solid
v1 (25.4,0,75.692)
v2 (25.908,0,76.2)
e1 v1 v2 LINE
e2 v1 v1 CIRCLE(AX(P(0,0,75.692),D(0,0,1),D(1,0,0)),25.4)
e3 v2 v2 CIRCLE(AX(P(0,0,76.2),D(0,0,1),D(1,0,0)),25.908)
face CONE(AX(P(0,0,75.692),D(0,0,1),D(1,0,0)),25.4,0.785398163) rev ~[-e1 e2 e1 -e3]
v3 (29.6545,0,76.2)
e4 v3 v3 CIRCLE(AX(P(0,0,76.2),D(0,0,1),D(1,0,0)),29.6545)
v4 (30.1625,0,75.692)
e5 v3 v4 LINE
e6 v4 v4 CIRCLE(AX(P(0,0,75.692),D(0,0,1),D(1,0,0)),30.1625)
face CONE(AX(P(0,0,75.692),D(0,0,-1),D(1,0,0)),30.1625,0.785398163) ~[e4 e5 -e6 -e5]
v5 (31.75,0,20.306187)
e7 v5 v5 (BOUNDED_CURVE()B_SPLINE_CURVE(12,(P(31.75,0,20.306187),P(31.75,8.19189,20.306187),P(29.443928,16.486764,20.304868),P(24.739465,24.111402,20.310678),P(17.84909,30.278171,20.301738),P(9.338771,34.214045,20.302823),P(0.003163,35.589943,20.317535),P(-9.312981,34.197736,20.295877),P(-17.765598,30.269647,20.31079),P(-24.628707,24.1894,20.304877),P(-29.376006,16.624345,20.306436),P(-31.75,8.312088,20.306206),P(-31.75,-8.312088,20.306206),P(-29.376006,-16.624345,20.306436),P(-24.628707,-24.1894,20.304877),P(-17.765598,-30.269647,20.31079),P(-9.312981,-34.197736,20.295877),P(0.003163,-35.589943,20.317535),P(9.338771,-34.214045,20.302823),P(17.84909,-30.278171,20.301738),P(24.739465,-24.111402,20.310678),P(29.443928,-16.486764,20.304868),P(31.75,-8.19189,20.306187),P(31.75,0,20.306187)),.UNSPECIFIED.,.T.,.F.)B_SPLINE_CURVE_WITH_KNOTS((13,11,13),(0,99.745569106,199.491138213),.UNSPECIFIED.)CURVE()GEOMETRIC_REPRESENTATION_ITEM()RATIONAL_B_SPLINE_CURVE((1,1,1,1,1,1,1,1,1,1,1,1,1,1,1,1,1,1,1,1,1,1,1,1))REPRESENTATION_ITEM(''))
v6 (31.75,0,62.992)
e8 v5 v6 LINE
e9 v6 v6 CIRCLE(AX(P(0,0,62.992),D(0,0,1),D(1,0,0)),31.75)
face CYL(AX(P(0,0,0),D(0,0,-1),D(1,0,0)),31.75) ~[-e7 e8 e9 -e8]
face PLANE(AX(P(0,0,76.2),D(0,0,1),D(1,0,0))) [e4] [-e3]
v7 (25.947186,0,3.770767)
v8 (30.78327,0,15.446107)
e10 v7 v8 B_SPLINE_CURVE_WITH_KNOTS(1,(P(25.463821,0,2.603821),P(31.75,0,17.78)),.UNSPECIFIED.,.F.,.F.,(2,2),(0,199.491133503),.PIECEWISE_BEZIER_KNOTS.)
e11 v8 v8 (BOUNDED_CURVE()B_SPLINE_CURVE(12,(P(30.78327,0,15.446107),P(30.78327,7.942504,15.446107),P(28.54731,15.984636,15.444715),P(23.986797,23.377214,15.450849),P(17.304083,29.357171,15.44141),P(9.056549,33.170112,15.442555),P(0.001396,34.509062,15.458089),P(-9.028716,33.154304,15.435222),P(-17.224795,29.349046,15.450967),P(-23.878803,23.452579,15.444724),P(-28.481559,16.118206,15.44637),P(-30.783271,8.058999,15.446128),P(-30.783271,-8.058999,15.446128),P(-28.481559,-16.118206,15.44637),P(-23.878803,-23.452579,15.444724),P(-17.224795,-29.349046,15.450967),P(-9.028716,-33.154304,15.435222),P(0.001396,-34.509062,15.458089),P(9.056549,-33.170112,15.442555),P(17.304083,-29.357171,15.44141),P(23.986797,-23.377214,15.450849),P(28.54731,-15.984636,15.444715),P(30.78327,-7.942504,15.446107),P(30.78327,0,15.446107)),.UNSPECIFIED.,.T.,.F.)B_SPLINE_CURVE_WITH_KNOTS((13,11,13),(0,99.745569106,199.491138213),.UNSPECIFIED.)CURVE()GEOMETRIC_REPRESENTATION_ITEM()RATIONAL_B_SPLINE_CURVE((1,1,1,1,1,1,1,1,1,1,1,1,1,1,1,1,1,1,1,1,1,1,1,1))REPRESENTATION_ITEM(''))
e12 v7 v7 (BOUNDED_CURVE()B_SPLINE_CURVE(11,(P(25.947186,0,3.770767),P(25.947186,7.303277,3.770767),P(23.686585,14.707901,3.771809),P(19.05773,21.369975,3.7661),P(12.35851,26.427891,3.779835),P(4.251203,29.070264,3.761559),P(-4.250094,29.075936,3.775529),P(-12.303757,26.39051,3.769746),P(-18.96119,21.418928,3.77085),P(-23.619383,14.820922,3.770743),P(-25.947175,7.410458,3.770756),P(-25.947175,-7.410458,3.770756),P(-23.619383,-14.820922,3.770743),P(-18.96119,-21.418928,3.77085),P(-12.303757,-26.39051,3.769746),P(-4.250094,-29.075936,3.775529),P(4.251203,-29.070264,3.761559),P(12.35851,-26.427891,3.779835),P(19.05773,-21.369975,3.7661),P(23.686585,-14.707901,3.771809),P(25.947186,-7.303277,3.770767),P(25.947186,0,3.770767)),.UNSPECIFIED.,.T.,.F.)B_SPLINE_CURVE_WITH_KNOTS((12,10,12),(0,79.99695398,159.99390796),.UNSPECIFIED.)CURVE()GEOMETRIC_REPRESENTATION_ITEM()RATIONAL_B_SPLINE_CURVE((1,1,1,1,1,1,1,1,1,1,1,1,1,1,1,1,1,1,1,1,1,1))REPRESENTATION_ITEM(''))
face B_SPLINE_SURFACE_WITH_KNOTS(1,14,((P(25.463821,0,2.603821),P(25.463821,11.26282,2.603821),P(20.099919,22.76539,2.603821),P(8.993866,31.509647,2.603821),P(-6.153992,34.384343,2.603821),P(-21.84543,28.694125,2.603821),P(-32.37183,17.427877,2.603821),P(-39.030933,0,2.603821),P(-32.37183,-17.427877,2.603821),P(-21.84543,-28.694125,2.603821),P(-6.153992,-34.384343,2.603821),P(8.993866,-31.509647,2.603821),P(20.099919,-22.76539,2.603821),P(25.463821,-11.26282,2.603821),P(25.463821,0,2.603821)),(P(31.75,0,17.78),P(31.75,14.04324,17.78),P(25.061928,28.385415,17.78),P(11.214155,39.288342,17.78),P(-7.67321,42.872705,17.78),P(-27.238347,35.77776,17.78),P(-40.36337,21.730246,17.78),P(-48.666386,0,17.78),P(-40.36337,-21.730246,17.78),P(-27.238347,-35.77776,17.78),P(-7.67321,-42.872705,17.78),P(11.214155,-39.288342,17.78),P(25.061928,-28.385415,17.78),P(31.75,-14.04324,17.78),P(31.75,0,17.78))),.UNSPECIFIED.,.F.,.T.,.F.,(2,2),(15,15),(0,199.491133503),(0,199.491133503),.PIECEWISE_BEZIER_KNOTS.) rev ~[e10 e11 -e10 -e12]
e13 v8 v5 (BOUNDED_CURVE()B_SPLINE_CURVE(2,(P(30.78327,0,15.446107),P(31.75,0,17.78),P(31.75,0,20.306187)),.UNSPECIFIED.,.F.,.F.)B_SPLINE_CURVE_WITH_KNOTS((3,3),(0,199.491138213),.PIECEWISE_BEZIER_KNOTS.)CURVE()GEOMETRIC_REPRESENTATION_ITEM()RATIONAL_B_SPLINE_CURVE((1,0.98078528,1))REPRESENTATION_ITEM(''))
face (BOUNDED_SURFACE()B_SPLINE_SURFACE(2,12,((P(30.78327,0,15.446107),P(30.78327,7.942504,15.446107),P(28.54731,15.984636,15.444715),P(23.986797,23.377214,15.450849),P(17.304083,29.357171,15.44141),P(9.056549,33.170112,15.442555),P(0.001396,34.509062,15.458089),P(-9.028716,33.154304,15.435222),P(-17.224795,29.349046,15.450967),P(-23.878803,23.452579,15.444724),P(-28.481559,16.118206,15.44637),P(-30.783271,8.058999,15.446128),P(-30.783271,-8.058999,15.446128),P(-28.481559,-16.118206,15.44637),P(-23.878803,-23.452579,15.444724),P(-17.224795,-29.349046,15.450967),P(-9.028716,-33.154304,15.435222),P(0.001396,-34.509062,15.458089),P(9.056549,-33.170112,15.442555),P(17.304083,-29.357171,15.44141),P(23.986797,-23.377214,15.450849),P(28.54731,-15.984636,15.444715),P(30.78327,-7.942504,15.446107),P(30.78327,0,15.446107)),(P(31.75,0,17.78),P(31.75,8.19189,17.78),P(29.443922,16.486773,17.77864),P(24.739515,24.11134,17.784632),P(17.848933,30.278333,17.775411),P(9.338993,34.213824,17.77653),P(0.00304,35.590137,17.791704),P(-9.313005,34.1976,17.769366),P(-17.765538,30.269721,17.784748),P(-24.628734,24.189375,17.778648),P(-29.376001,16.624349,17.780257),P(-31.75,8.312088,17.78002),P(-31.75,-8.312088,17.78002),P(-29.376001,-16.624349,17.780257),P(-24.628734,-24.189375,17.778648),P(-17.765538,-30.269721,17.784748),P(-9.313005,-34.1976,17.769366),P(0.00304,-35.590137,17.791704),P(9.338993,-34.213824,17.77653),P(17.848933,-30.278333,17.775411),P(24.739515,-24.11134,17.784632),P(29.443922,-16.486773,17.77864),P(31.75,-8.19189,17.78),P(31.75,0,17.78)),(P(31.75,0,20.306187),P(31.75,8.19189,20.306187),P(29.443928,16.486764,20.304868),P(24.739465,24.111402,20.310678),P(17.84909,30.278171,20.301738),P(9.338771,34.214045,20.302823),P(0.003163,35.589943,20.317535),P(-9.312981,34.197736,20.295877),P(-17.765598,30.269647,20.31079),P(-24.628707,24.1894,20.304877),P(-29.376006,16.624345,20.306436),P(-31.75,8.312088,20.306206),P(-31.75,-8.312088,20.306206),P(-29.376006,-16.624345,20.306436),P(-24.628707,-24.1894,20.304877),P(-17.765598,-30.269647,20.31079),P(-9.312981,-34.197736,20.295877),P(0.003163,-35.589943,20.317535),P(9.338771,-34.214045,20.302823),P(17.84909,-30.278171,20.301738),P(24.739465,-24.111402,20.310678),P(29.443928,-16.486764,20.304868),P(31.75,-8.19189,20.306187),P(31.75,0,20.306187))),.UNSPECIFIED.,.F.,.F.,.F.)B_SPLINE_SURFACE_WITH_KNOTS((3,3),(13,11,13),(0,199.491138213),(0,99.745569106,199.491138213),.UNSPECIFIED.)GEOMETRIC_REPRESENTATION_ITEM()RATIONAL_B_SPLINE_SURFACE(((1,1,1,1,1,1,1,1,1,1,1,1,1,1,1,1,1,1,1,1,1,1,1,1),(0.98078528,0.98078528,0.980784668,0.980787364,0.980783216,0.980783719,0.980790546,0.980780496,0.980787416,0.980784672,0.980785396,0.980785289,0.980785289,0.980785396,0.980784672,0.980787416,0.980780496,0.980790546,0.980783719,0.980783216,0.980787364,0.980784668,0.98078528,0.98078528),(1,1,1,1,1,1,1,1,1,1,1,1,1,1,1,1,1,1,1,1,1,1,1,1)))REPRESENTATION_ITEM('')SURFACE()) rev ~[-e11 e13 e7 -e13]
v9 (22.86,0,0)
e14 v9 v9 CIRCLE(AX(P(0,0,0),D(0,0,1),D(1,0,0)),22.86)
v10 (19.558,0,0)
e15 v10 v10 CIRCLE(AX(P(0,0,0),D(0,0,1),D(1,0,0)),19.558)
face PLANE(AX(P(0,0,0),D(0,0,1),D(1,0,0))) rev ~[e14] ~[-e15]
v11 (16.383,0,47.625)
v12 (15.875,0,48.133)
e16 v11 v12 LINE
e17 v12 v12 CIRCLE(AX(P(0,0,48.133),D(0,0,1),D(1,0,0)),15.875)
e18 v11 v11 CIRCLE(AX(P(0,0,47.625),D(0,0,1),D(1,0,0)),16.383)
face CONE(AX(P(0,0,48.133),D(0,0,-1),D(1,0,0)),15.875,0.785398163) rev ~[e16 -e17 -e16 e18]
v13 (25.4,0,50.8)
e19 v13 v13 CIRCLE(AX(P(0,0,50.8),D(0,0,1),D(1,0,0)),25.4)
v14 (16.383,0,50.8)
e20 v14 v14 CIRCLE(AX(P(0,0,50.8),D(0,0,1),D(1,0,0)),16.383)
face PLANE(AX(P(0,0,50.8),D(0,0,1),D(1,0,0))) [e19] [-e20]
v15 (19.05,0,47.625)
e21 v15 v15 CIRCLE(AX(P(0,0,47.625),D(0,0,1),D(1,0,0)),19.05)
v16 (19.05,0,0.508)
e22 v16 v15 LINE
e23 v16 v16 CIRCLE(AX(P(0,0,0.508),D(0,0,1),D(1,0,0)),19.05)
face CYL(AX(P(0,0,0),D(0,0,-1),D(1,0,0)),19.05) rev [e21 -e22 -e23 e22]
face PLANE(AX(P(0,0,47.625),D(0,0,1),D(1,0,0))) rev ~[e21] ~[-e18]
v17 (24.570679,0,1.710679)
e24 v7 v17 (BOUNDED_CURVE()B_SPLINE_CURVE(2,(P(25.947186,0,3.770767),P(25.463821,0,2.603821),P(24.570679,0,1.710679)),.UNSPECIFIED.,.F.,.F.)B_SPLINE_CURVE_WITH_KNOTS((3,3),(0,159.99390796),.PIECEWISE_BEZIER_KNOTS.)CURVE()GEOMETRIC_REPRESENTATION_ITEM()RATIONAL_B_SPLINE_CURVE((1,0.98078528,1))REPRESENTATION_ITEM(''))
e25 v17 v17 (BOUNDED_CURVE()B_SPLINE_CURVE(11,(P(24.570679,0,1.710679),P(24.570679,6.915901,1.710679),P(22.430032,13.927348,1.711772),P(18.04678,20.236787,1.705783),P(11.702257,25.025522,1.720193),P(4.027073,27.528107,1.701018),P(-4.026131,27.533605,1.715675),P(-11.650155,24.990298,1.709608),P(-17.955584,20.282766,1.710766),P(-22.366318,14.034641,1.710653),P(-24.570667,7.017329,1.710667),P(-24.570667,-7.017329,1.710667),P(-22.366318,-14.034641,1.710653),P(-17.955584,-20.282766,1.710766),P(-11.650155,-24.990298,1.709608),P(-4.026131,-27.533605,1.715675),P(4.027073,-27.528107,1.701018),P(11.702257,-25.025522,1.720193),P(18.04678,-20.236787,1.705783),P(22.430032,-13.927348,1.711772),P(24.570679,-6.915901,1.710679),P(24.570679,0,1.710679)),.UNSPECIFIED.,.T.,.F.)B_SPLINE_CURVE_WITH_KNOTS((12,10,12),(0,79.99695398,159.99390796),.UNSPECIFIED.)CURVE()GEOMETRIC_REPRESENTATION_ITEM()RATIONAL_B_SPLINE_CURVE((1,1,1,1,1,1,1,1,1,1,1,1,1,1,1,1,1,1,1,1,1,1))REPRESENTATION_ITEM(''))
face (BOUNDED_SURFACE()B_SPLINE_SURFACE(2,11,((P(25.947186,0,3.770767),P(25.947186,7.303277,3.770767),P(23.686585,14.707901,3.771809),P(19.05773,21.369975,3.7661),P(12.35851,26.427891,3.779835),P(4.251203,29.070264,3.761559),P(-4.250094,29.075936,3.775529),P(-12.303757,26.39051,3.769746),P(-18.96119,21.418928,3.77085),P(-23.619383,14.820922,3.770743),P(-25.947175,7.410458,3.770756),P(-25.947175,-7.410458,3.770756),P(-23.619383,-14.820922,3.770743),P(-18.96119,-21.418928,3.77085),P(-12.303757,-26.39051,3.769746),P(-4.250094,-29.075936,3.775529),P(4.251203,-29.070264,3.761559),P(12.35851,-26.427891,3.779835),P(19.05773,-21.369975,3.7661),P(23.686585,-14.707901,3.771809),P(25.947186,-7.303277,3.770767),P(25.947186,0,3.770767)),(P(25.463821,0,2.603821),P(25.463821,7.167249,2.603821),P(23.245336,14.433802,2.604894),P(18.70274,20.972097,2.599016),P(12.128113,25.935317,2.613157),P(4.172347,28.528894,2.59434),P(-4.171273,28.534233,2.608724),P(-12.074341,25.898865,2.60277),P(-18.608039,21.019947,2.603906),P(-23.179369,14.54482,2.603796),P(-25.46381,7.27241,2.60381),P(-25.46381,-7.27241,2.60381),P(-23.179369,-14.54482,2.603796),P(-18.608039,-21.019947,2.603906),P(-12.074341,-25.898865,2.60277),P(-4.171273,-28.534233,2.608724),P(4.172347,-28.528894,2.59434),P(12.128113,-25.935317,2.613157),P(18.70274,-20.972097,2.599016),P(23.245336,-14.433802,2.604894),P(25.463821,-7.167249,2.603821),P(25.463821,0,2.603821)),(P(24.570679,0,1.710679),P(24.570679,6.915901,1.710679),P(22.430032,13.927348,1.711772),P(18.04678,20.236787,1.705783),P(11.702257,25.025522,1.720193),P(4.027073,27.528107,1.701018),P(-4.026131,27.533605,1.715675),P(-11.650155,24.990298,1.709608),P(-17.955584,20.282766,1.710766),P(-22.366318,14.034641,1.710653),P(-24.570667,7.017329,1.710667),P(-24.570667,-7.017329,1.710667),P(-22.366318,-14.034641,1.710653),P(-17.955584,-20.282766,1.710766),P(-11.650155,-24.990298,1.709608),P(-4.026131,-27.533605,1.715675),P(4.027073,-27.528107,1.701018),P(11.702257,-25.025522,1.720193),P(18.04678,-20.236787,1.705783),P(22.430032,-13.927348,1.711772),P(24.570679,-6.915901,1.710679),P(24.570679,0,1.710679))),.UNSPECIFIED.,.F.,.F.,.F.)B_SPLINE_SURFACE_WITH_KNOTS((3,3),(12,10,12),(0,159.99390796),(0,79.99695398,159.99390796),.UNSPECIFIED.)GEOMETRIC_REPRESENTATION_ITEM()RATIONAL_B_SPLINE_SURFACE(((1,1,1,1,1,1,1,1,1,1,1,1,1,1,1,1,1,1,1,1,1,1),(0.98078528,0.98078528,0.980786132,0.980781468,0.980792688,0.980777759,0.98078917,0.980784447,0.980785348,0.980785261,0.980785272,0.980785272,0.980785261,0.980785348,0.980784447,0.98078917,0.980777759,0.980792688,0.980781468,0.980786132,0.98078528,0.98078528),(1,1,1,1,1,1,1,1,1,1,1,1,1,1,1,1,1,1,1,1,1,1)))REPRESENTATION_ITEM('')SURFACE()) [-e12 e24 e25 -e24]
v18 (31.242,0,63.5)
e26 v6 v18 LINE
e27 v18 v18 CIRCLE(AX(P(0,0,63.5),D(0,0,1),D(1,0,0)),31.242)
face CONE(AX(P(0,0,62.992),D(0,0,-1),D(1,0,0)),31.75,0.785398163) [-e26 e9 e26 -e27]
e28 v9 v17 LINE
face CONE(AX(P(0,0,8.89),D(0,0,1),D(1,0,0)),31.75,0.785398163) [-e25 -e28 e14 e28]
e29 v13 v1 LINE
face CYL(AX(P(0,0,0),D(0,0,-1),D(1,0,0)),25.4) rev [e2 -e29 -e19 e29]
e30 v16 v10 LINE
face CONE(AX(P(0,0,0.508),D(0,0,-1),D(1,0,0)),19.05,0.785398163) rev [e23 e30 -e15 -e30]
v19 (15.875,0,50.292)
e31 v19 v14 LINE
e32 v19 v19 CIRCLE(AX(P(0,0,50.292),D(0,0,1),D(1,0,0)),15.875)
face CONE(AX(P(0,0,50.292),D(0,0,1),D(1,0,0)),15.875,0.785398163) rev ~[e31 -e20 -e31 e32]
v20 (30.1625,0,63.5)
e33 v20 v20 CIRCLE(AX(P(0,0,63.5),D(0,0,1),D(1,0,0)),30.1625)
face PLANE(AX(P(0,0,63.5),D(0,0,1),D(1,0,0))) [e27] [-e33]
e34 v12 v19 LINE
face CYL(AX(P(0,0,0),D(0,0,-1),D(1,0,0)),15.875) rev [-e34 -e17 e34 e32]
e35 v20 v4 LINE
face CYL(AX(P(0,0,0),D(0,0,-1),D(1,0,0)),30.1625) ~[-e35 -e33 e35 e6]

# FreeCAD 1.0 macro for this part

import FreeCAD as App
import Part
import Sketcher

V = App.Vector
Q = App.Units.Quantity


def edges_at(feature, points):
    """Names of the edges that pass closest to the given points."""
    edges = feature.Shape.Edges
    near = lambda p: min(range(len(edges)), key=lambda i: edges[i].distToShape(Part.Vertex(*p))[0])
    return sorted({f"Edge{near(p) + 1}" for p in points})

doc = App.newDocument("Part")
body = doc.addObject("PartDesign::Body", "Body")

# Sketch on XY plane
sketch1 = body.newObject("Sketcher::SketchObject", "Sketch")
sketch1.AttachmentSupport = (doc.getObject("XY_Plane"), [""])
sketch1.MapMode = "FlatFace"
sketch1.addGeometry([
    Part.Circle(V(0, 0, 0), V(0, 0, 1), 32),
    Part.Circle(V(0, 0, 0), V(0, 0, 1), 30),
], False)
sketch1.addConstraint([
    Sketcher.Constraint("Coincident", 0, 3, -1, 1),
    Sketcher.Constraint("Coincident", 1, 3, -1, 1),
    Sketcher.Constraint("Diameter", 0, Q("2.5 in")),
    Sketcher.Constraint("Diameter", 1, Q("2.375 in")),
])
pad1 = body.newObject("PartDesign::Pad", "Pad")
pad1.Profile = sketch1
pad1.Length = Q("2.5 in")

# Sketch on XY plane
sketch2 = body.newObject("Sketcher::SketchObject", "Sketch001")
sketch2.AttachmentSupport = (doc.getObject("XY_Plane"), [""])
sketch2.MapMode = "FlatFace"
sketch2.addGeometry([
    Part.Circle(V(0, 0, 0), V(0, 0, 1), 30),
    Part.Circle(V(0, 0, 0), V(0, 0, 1), 25),
], False)
sketch2.addConstraint([
    Sketcher.Constraint("Coincident", 0, 3, -1, 1),
    Sketcher.Constraint("Coincident", 1, 3, -1, 1),
    Sketcher.Constraint("Diameter", 1, Q("2 in")),
    Sketcher.Constraint("Diameter", 0, Q("2.375 in")),
])
pad2 = body.newObject("PartDesign::Pad", "Pad001")
pad2.Profile = sketch2
pad2.Length = Q("3 in")

# Sketch on XY plane
sketch3 = body.newObject("Sketcher::SketchObject", "Sketch002")
sketch3.AttachmentSupport = (doc.getObject("XY_Plane"), [""])
sketch3.MapMode = "FlatFace"
sketch3.addGeometry([
    Part.Circle(V(0, 0, 0), V(0, 0, 1), 25),
    Part.Circle(V(0, 0, 0), V(0, 0, 1), 19),
], False)
sketch3.addConstraint([
    Sketcher.Constraint("Coincident", 0, 3, -1, 1),
    Sketcher.Constraint("Coincident", 1, 3, -1, 1),
    Sketcher.Constraint("Diameter", 0, Q("2 in")),
    Sketcher.Constraint("Diameter", 1, Q("1.5 in")),
])
pad3 = body.newObject("PartDesign::Pad", "Pad002")
pad3.Profile = sketch3
pad3.Length = Q("2 in")

# Sketch on XY plane
sketch4 = body.newObject("Sketcher::SketchObject", "Sketch003")
sketch4.AttachmentSupport = (doc.getObject("XY_Plane"), [""])
sketch4.MapMode = "FlatFace"
sketch4.addGeometry([
    Part.Circle(V(0, 0, 0), V(0, 0, 1), 19),
    Part.Circle(V(0, 0, 0), V(0, 0, 1), 16),
], False)
sketch4.addConstraint([
    Sketcher.Constraint("Coincident", 0, 3, -1, 1),
    Sketcher.Constraint("Coincident", 1, 3, -1, 1),
    Sketcher.Constraint("Diameter", 0, Q("1.5 in")),
    Sketcher.Constraint("Diameter", 1, Q("1.25 in")),
])
pad4 = body.newObject("PartDesign::Pad", "Pad003")
pad4.Profile = sketch4
pad4.Length = Q("2 in")

# Sketch on XY plane
sketch5 = body.newObject("Sketcher::SketchObject", "Sketch004")
sketch5.AttachmentSupport = (doc.getObject("XY_Plane"), [""])
sketch5.MapMode = "FlatFace"
sketch5.addGeometry([
    Part.Circle(V(0, 0, 0), V(0, 0, 1), 19),
    Part.Circle(V(0, 0, 0), V(0, 0, 1), 16),
], False)
sketch5.addConstraint([
    Sketcher.Constraint("Coincident", 0, 3, -1, 1),
    Sketcher.Constraint("Coincident", 1, 3, -1, 1),
    Sketcher.Constraint("Diameter", 0, Q("1.5 in")),
    Sketcher.Constraint("Diameter", 1, Q("1.25 in")),
])
pocket1 = body.newObject("PartDesign::Pocket", "Pocket")
pocket1.Profile = sketch5
pocket1.Length = Q("1.875 in")
pocket1.Reversed = True
doc.recompute()

chamfer = body.newObject("PartDesign::Chamfer", "Chamfer")
chamfer.Base = (pocket1, edges_at(pocket1, [
    (-19.05, 0, 0),
    (-31.75, 0, 63.5),
    (-30.163, 0, 76.2),
    (-25.4, 0, 76.2),
]))
chamfer.Size = Q("0.02 in")
doc.recompute()

chamfer2 = body.newObject("PartDesign::Chamfer", "Chamfer001")
chamfer2.Base = (chamfer, edges_at(chamfer, [(-15.875, 0, 50.8), (-15.875, 0, 47.625)]))
chamfer2.Size = Q("0.02 in")
doc.recompute()

chamfer3 = body.newObject("PartDesign::Chamfer", "Chamfer002")
chamfer3.Base = (chamfer2, edges_at(chamfer2, [(-31.75, 0, 0)]))
chamfer3.Size = Q("0.35 in")
doc.recompute()

chamfer4 = body.newObject("PartDesign::Chamfer", "Chamfer003")
chamfer4.Base = (chamfer3, edges_at(chamfer3, [(-31.75, 0, 8.89)]))
chamfer4.Size = Q("0.35 in")
doc.recompute()

fillet = body.newObject("PartDesign::Fillet", "Fillet")
fillet.Base = (chamfer4, edges_at(chamfer4, [(-31.75, 0, 17.78)]))
fillet.Radius = Q("0.5 in")
doc.recompute()

fillet2 = body.newObject("PartDesign::Fillet", "Fillet001")
fillet2.Base = (fillet, edges_at(fillet, [(-25.464, 0, 2.604)]))
fillet2.Radius = Q("0.25 in")

doc.recompute()
